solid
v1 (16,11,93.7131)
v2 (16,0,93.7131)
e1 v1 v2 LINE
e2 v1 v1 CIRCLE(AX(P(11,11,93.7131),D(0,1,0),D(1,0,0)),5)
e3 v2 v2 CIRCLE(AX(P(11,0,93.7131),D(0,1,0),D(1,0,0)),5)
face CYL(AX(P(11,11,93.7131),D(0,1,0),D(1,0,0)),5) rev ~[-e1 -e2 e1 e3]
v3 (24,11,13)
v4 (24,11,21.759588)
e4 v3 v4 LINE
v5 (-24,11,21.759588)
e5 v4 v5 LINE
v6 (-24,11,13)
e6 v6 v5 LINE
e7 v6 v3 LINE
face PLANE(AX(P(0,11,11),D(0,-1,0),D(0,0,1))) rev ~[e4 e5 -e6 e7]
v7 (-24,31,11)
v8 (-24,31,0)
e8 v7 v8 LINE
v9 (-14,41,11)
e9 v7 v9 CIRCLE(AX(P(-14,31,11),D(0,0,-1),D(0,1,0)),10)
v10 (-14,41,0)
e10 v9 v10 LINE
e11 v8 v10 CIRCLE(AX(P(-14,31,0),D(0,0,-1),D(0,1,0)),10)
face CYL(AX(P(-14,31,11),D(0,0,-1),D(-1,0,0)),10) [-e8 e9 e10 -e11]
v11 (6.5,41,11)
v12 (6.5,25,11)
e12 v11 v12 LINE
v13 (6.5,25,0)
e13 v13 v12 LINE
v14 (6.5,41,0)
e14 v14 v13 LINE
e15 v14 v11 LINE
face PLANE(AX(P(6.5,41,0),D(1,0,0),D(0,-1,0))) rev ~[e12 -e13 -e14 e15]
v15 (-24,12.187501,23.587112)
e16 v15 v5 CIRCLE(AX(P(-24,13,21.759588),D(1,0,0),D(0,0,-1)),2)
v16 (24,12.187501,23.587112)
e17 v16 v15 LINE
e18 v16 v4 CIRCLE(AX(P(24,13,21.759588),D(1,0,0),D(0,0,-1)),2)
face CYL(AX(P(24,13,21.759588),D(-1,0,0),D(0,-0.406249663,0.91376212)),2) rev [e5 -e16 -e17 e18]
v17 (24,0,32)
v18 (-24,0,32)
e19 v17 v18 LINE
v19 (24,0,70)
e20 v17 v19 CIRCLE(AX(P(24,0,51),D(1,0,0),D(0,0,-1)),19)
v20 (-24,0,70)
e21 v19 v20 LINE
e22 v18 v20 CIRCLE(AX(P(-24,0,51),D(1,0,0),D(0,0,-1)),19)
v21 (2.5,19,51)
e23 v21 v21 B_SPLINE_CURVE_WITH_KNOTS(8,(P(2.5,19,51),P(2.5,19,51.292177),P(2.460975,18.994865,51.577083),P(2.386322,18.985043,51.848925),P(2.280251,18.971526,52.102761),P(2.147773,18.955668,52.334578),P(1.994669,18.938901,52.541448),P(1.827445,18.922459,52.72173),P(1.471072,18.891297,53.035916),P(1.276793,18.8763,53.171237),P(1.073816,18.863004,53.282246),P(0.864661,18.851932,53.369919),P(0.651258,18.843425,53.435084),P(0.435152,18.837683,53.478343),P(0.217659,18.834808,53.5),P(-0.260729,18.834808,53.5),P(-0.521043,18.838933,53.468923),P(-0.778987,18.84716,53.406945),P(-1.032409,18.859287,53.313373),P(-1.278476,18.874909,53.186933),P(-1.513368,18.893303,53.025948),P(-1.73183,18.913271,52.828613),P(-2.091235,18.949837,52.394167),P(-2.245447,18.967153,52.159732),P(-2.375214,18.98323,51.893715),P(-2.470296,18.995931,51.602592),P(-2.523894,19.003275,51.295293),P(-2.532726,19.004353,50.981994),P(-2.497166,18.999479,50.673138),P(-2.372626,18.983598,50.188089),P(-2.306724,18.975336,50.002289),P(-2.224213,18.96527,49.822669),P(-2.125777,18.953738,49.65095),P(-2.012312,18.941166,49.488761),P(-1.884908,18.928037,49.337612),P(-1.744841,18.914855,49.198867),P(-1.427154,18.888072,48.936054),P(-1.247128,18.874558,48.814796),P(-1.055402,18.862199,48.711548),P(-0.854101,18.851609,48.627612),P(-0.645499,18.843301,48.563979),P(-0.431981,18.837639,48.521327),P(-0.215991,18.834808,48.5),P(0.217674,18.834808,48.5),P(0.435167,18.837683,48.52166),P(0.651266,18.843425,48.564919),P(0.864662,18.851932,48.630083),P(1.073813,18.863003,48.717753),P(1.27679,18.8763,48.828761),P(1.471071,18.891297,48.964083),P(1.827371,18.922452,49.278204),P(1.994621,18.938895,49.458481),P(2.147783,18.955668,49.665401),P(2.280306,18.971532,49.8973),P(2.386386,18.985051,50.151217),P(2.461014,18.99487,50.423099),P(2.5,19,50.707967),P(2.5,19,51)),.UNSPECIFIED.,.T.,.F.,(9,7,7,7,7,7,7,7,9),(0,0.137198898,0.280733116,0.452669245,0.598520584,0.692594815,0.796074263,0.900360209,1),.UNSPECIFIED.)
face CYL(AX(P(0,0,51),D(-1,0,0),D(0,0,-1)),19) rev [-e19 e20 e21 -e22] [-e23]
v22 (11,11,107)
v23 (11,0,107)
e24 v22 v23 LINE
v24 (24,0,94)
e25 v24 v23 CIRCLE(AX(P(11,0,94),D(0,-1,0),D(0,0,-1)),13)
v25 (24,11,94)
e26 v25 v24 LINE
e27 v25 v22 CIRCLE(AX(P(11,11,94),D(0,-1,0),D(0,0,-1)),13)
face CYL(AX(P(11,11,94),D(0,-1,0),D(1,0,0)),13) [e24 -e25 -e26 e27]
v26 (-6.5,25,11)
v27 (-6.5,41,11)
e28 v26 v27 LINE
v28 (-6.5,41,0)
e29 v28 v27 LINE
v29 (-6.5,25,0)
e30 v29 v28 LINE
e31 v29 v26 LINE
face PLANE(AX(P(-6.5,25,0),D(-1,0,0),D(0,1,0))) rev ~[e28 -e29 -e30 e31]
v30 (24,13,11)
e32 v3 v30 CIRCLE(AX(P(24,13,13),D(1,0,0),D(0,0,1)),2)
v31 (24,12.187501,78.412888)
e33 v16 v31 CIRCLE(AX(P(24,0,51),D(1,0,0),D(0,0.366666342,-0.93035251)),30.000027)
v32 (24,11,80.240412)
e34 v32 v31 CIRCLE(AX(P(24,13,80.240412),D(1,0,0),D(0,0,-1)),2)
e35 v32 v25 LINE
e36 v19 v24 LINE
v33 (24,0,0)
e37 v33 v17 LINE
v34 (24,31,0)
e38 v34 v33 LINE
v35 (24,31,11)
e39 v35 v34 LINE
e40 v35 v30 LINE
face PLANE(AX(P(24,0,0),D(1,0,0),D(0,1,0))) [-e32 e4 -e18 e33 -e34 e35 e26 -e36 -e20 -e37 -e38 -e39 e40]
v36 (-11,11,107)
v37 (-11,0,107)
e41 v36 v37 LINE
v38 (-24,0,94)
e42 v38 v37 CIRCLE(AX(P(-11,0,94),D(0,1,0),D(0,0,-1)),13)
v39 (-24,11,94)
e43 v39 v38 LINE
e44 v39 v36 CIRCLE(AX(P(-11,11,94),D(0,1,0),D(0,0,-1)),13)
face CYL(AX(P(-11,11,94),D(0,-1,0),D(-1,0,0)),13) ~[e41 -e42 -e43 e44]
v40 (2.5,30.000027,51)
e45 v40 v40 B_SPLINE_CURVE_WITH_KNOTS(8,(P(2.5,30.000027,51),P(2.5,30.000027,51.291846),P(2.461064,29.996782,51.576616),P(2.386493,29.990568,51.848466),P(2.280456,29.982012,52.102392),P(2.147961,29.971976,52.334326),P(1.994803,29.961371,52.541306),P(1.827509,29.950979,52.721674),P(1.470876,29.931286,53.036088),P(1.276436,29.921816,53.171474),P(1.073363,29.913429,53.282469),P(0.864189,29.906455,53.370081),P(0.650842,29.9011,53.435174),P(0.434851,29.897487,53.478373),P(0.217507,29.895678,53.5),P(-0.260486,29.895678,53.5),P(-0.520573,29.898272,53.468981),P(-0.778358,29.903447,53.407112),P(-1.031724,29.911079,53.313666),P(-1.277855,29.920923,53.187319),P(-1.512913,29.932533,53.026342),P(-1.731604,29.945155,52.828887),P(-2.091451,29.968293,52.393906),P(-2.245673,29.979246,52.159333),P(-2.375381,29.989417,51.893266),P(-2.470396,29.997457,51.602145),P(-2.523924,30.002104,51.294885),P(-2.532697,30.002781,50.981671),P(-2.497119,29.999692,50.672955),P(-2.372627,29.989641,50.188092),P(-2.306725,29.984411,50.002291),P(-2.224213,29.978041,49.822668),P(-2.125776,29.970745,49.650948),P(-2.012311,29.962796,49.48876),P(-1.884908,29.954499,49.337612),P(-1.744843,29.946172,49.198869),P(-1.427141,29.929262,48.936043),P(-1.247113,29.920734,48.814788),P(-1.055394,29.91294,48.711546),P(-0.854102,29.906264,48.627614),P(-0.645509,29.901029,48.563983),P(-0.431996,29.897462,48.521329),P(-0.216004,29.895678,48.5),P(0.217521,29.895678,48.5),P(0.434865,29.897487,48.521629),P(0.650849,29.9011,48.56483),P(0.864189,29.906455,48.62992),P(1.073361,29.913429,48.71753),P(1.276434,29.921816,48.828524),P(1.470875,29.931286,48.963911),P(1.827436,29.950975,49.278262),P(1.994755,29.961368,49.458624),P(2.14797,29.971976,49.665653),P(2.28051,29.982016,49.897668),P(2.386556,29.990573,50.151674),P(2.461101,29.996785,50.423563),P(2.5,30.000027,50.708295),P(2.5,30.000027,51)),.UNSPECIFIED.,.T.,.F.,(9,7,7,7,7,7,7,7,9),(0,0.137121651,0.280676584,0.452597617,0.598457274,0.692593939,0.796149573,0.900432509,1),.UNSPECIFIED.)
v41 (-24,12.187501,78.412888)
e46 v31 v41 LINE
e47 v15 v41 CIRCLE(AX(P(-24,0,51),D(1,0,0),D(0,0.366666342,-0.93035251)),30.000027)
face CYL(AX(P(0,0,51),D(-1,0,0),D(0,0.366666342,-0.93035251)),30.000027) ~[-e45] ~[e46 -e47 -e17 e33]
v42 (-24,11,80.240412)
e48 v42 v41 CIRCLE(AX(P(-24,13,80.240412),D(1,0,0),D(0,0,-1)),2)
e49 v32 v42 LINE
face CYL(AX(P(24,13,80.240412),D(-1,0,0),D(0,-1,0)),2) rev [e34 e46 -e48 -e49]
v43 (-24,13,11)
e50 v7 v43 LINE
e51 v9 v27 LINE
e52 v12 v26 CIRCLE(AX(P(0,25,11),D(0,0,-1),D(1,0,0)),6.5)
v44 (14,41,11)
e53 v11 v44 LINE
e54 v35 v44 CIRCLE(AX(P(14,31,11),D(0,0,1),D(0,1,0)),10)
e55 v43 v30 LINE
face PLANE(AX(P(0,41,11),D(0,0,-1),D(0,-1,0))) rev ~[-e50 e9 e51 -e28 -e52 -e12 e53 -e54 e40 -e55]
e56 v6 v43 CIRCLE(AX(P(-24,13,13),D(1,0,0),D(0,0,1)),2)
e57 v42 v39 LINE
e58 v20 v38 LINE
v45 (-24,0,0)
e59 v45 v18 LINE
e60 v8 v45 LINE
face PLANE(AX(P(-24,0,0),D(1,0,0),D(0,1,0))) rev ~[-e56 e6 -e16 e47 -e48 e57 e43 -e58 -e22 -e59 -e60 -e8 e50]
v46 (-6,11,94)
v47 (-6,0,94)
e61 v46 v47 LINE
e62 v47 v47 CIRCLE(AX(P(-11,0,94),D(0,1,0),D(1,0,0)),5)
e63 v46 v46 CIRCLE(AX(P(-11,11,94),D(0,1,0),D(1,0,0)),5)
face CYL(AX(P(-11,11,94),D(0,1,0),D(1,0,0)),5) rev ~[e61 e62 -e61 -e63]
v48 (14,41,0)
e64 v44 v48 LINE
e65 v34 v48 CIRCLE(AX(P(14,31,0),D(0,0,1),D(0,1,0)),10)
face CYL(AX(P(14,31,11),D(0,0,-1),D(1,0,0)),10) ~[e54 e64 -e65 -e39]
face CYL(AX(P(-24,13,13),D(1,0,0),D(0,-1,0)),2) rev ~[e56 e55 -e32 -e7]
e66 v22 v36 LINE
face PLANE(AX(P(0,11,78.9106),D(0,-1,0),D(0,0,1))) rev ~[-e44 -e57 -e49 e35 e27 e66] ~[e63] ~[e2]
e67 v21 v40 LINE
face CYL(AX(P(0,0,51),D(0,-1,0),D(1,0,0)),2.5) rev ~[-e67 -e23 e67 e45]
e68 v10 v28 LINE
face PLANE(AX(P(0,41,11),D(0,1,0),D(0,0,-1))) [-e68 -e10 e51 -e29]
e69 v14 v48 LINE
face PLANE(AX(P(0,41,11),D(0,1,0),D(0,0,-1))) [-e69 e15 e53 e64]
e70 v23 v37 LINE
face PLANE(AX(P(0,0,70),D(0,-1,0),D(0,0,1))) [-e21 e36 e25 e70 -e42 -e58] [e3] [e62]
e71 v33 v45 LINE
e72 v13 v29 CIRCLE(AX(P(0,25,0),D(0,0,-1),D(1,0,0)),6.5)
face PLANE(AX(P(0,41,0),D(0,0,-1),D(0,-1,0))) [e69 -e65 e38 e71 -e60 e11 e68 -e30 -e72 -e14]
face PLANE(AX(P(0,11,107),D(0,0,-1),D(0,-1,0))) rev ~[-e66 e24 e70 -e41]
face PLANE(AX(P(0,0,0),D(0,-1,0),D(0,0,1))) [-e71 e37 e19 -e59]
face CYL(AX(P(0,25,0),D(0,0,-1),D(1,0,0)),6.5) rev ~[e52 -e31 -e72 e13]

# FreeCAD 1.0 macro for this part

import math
import FreeCAD as App
import Part
import Sketcher
from FreeCAD import Vector
Q = App.Units.Quantity


def edges_at(feature, points):
    """Names of the edges that pass closest to the given points."""
    edges = feature.Shape.Edges
    near = lambda p: min(range(len(edges)), key=lambda i: edges[i].distToShape(Part.Vertex(*p))[0])
    return sorted({f"Edge{near(p) + 1}" for p in points})

doc = App.newDocument("Part")
body = doc.addObject("PartDesign::Body", "Body")

# Sketch on YZ plane
sketch1 = body.newObject("Sketcher::SketchObject", "Sketch")
sketch1.AttachmentSupport = (doc.getObject("YZ_Plane"), [""])
sketch1.MapMode = "FlatFace"
sketch1.addGeometry(Part.LineSegment(Vector(0, 0, 0), Vector(41, 0, 0)), False)
sketch1.addGeometry(Part.LineSegment(Vector(41, 0, 0), Vector(41, 11, 0)), False)
sketch1.addGeometry(Part.LineSegment(Vector(41, 11, 0), Vector(11, 11, 0)), False)
sketch1.addGeometry(Part.LineSegment(Vector(11, 11, 0), Vector(11, 23, 0)), False)
sketch1.addGeometry(Part.ArcOfCircle(Part.Circle(Vector(0, 51, 0), Vector(0, 0, 1), 30), math.radians(-68), math.radians(68)), False)
sketch1.addGeometry(Part.LineSegment(Vector(11, 79, 0), Vector(11, 107, 0)), False)
sketch1.addGeometry(Part.LineSegment(Vector(11, 107, 0), Vector(0, 107, 0)), False)
sketch1.addGeometry(Part.LineSegment(Vector(0, 107, 0), Vector(0, 70, 0)), False)
sketch1.addGeometry(Part.ArcOfCircle(Part.Circle(Vector(0, 51, 0), Vector(0, 0, 1), 19), math.radians(-90), math.radians(90)), False)
sketch1.addGeometry(Part.LineSegment(Vector(0, 32, 0), Vector(0, 0, 0)), False)
sketch1.addConstraint(Sketcher.Constraint("Coincident", 0, 2, 1, 1))
sketch1.addConstraint(Sketcher.Constraint("Coincident", 1, 2, 2, 1))
sketch1.addConstraint(Sketcher.Constraint("Coincident", 2, 2, 3, 1))
sketch1.addConstraint(Sketcher.Constraint("Coincident", 3, 2, 4, 1))
sketch1.addConstraint(Sketcher.Constraint("Coincident", 4, 2, 5, 1))
sketch1.addConstraint(Sketcher.Constraint("Coincident", 5, 2, 6, 1))
sketch1.addConstraint(Sketcher.Constraint("Coincident", 6, 2, 7, 1))
sketch1.addConstraint(Sketcher.Constraint("Coincident", 7, 2, 8, 2))
sketch1.addConstraint(Sketcher.Constraint("Coincident", 8, 1, 9, 1))
sketch1.addConstraint(Sketcher.Constraint("Coincident", 9, 2, 0, 1))
sketch1.addConstraint(Sketcher.Constraint("Horizontal", 0))
sketch1.addConstraint(Sketcher.Constraint("Vertical", 1))
sketch1.addConstraint(Sketcher.Constraint("Horizontal", 2))
sketch1.addConstraint(Sketcher.Constraint("Vertical", 3))
sketch1.addConstraint(Sketcher.Constraint("Vertical", 5))
sketch1.addConstraint(Sketcher.Constraint("Horizontal", 6))
sketch1.addConstraint(Sketcher.Constraint("Vertical", 7))
sketch1.addConstraint(Sketcher.Constraint("Vertical", 9))
sketch1.addConstraint(Sketcher.Constraint("Coincident", 9, 2, -1, 1))
sketch1.addConstraint(Sketcher.Constraint("Coincident", 8, 3, 4, 3))
sketch1.addConstraint(Sketcher.Constraint("PointOnObject", 4, 3, -2))
sketch1.addConstraint(Sketcher.Constraint("PointOnObject", 6, 2, -2))
sketch1.addConstraint(Sketcher.Constraint("Vertical", 3, 2, 4, 2))
sketch1.addConstraint(Sketcher.Constraint("Equal", 6, 1))
sketch1.addConstraint(Sketcher.Constraint("Radius", 4, Q("30 mm")))
sketch1.addConstraint(Sketcher.Constraint("DistanceX", 0, 1, 0, 2, Q("41 mm")))
sketch1.addConstraint(Sketcher.Constraint("DistanceX", 2, 2, 2, 1, Q("30 mm")))
sketch1.addConstraint(Sketcher.Constraint("DistanceY", -1, 1, 4, 3, Q("51 mm")))
sketch1.addConstraint(Sketcher.Constraint("DistanceY", -1, 1, 5, 2, Q("107 mm")))
sketch1.addConstraint(Sketcher.Constraint("Radius", 8, Q("19 mm")))
pad1 = body.newObject("PartDesign::Pad", "Pad")
pad1.Profile = sketch1
pad1.Length = 48
pad1.Midplane = True
doc.recompute()

fillet = body.newObject("PartDesign::Fillet", "Fillet")
fillet.Base = (pad1, edges_at(pad1, [(24, 5.5, 107), (-24, 5.5, 107)]))
fillet.Radius = 13
doc.recompute()

fillet2 = body.newObject("PartDesign::Fillet", "Fillet001")
fillet2.Base = (fillet, edges_at(fillet, [(0, 11, 78.911), (0, 11, 23.089), (0, 11, 11)]))
fillet2.Radius = 2

# Sketch on XZ plane
sketch2 = body.newObject("Sketcher::SketchObject", "Sketch001")
sketch2.AttachmentSupport = (doc.getObject("XZ_Plane"), [""])
sketch2.MapMode = "FlatFace"
sketch2.AttachmentOffset = App.Placement(Vector(0, 0, -11), App.Rotation())
sketch2.addGeometry(Part.Circle(Vector(-11, 94, 0), Vector(0, 0, 1), 5), False)
sketch2.addGeometry(Part.Circle(Vector(11, 94, 0), Vector(0, 0, 1), 5), False)
sketch2.addConstraint(Sketcher.Constraint("Equal", 0, 1))
sketch2.addConstraint(Sketcher.Constraint("Diameter", 0, Q("10 mm")))
sketch2.addConstraint(Sketcher.Constraint("DistanceX", 0, 3, -1, 1, Q("11 mm")))
sketch2.addConstraint(Sketcher.Constraint("DistanceY", -1, 1, 0, 3, Q("94 mm")))
sketch2.addConstraint(Sketcher.Constraint("DistanceX", -1, 1, 1, 3, Q("11 mm")))
sketch2.addConstraint(Sketcher.Constraint("DistanceY", -1, 1, 1, 3, Q("93.713 mm")))
pocket1 = body.newObject("PartDesign::Pocket", "Pocket")
pocket1.Profile = sketch2
pocket1.Type = "ThroughAll"
pocket1.Reversed = True

# Sketch on XY plane
sketch3 = body.newObject("Sketcher::SketchObject", "Sketch002")
sketch3.AttachmentSupport = (doc.getObject("XY_Plane"), [""])
sketch3.MapMode = "FlatFace"
sketch3.addGeometry(Part.LineSegment(Vector(-6, 25, 0), Vector(-6, 41, 0)), False)
sketch3.addGeometry(Part.LineSegment(Vector(-6, 41, 0), Vector(6, 41, 0)), False)
sketch3.addGeometry(Part.LineSegment(Vector(6, 41, 0), Vector(6, 25, 0)), False)
sketch3.addGeometry(Part.ArcOfCircle(Part.Circle(Vector(0, 25, 0), Vector(0, 0, 1), 6), math.radians(180), math.radians(360)), False)
sketch3.addConstraint(Sketcher.Constraint("Coincident", 0, 2, 1, 1))
sketch3.addConstraint(Sketcher.Constraint("Coincident", 1, 2, 2, 1))
sketch3.addConstraint(Sketcher.Constraint("Tangent", 2, 2, 3, 2))
sketch3.addConstraint(Sketcher.Constraint("Tangent", 3, 1, 0, 1))
sketch3.addConstraint(Sketcher.Constraint("Vertical", 0))
sketch3.addConstraint(Sketcher.Constraint("Horizontal", 1))
sketch3.addConstraint(Sketcher.Constraint("Vertical", 2))
sketch3.addConstraint(Sketcher.Constraint("PointOnObject", 3, 3, -2))
sketch3.addConstraint(Sketcher.Constraint("Radius", 3, Q("6.5 mm")))
sketch3.addConstraint(Sketcher.Constraint("DistanceY", 0, 1, 0, 2, Q("16 mm")))
sketch3.addConstraint(Sketcher.Constraint("DistanceY", -1, 1, 3, 3, Q("25 mm")))
pocket2 = body.newObject("PartDesign::Pocket", "Pocket001")
pocket2.Profile = sketch3
pocket2.Length = 11
pocket2.Reversed = True
doc.recompute()

fillet3 = body.newObject("PartDesign::Fillet", "Fillet002")
fillet3.Base = (pocket2, edges_at(pocket2, [(24, 41, 5.5), (-24, 41, 5.5)]))
fillet3.Radius = 10

# Sketch on XZ plane
sketch4 = body.newObject("Sketcher::SketchObject", "Sketch003")
sketch4.AttachmentSupport = (doc.getObject("XZ_Plane"), [""])
sketch4.MapMode = "FlatFace"
sketch4.addGeometry(Part.Circle(Vector(0, 51, 0), Vector(0, 0, 1), 2.5), False)
sketch4.addConstraint(Sketcher.Constraint("PointOnObject", 0, 3, -2))
sketch4.addConstraint(Sketcher.Constraint("Diameter", 0, Q("5 mm")))
sketch4.addConstraint(Sketcher.Constraint("DistanceY", -1, 1, 0, 3, Q("51 mm")))
pocket3 = body.newObject("PartDesign::Pocket", "Pocket002")
pocket3.Profile = sketch4
pocket3.Type = "ThroughAll"

doc.recompute()
